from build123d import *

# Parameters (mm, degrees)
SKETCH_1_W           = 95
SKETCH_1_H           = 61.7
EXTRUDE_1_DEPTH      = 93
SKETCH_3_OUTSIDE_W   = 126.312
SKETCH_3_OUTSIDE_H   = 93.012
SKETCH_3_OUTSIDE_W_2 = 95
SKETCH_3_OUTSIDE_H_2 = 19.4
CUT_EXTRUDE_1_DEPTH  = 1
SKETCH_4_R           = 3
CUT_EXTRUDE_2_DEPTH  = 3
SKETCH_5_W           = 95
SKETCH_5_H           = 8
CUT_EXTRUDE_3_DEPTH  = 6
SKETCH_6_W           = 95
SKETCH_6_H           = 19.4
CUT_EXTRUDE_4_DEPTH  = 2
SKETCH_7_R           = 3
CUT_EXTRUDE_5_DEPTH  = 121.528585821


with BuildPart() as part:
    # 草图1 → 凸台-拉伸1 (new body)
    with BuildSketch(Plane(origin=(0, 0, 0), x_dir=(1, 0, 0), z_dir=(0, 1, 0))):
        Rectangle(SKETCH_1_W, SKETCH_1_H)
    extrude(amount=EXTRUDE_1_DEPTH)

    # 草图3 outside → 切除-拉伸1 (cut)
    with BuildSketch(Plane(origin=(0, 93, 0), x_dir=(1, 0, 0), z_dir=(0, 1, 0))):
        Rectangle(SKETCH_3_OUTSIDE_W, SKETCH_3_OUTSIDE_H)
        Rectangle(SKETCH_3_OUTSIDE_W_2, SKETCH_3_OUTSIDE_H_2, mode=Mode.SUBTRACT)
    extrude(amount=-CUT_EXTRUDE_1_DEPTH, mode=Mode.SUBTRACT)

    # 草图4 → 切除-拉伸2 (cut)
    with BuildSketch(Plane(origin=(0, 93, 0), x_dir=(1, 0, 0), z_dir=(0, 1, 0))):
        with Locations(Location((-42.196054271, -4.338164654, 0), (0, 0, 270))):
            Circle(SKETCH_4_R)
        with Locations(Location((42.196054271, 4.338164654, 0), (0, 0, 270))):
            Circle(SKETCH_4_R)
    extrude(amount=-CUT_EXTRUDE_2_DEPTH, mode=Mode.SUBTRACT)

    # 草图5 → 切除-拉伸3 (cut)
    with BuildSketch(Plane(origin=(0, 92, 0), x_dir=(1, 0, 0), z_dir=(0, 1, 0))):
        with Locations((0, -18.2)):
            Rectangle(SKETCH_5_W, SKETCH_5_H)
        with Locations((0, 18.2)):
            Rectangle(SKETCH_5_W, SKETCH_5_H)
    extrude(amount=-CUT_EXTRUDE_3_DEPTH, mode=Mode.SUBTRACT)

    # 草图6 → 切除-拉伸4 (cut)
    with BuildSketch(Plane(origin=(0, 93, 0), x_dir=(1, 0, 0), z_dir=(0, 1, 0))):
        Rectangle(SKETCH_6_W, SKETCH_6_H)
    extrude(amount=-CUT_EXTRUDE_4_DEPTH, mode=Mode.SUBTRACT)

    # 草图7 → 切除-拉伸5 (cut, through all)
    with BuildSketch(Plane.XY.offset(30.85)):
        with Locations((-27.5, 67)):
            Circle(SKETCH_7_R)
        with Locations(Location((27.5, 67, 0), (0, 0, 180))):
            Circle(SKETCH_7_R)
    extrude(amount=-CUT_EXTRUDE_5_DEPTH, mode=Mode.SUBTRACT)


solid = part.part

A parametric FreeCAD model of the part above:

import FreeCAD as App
import Part
import Sketcher

V = App.Vector
Q = App.Units.Quantity

doc = App.newDocument("Part")
body = doc.addObject("PartDesign::Body", "Body")

# Sketch on XZ plane
sketch1 = doc.addObject("Sketcher::SketchObject", "Sketch")
body.addObject(sketch1)
sketch1.AttachmentSupport = (doc.XZ_Plane, [""])
sketch1.MapMode = "FlatFace"
sketch1.addGeometry([
    Part.LineSegment(V(-47.5, -30.85, 0), V(-47.5, 30.85, 0)),
    Part.LineSegment(V(-47.5, 30.85, 0), V(47.5, 30.85, 0)),
    Part.LineSegment(V(47.5, 30.85, 0), V(47.5, -30.85, 0)),
    Part.LineSegment(V(47.5, -30.85, 0), V(-47.5, -30.85, 0)),
], False)
sketch1.addConstraint([
    Sketcher.Constraint("Coincident", 0, 2, 1, 1),
    Sketcher.Constraint("Coincident", 1, 2, 2, 1),
    Sketcher.Constraint("Coincident", 2, 2, 3, 1),
    Sketcher.Constraint("Coincident", 3, 2, 0, 1),
    Sketcher.Constraint("Vertical", 0),
    Sketcher.Constraint("Horizontal", 1),
    Sketcher.Constraint("Vertical", 2),
    Sketcher.Constraint("Horizontal", 3),
    Sketcher.Constraint("Symmetric", 0, 2, 2, 2, -1, 1),
    Sketcher.Constraint("DistanceX", 1, 1, 1, 2, Q("95 mm")),
    Sketcher.Constraint("DistanceY", 0, 1, 0, 2, Q("61.7 mm")),
])
pad1 = doc.addObject("PartDesign::Pad", "Pad")
body.addObject(pad1)
pad1.Profile = sketch1
pad1.Length = 93
pad1.Reversed = True

# Sketch on XZ plane
sketch2 = doc.addObject("Sketcher::SketchObject", "Sketch001")
body.addObject(sketch2)
sketch2.AttachmentSupport = (doc.XZ_Plane, [""])
sketch2.MapMode = "FlatFace"
sketch2.AttachmentOffset = App.Placement(V(0, 0, -93), App.Rotation())
sketch2.addGeometry([
    Part.LineSegment(V(-63.156, -46.506, 0), V(-63.156, 46.506, 0)),  # 0
    Part.LineSegment(V(-63.156, 46.506, 0), V(63.156, 46.506, 0)),  # 1
    Part.LineSegment(V(63.156, 46.506, 0), V(63.156, -46.506, 0)),  # 2
    Part.LineSegment(V(63.156, -46.506, 0), V(-63.156, -46.506, 0)),  # 3
    Part.LineSegment(V(47.5, 9.7, 0), V(-47.5, 9.7, 0)),  # 4
    Part.LineSegment(V(-47.5, 9.7, 0), V(-47.5, -9.7, 0)),  # 5
    Part.LineSegment(V(-47.5, -9.7, 0), V(47.5, -9.7, 0)),  # 6
    Part.LineSegment(V(47.5, -9.7, 0), V(47.5, 9.7, 0)),  # 7
], False)
sketch2.addConstraint([
    Sketcher.Constraint("Coincident", 0, 2, 1, 1),
    Sketcher.Constraint("Coincident", 1, 2, 2, 1),
    Sketcher.Constraint("Coincident", 2, 2, 3, 1),
    Sketcher.Constraint("Coincident", 3, 2, 0, 1),
    Sketcher.Constraint("Coincident", 4, 2, 5, 1),
    Sketcher.Constraint("Coincident", 5, 2, 6, 1),
    Sketcher.Constraint("Coincident", 6, 2, 7, 1),
    Sketcher.Constraint("Coincident", 7, 2, 4, 1),
    Sketcher.Constraint("Vertical", 0),
    Sketcher.Constraint("Horizontal", 1),
    Sketcher.Constraint("Vertical", 2),
    Sketcher.Constraint("Horizontal", 3),
    Sketcher.Constraint("Horizontal", 4),
    Sketcher.Constraint("Vertical", 5),
    Sketcher.Constraint("Horizontal", 6),
    Sketcher.Constraint("Vertical", 7),
    Sketcher.Constraint("Symmetric", 0, 2, 2, 2, -1, 1),
    Sketcher.Constraint("Symmetric", 4, 2, 6, 2, -1, 1),
    Sketcher.Constraint("DistanceX", 4, 2, 4, 1, Q("95 mm")),
    Sketcher.Constraint("DistanceY", 5, 2, 5, 1, Q("19.4 mm")),
    Sketcher.Constraint("DistanceX", 1, 1, 1, 2, Q("126.312 mm")),
    Sketcher.Constraint("DistanceY", 0, 1, 0, 2, Q("93.012 mm")),
])
pocket1 = doc.addObject("PartDesign::Pocket", "Pocket")
body.addObject(pocket1)
pocket1.Profile = sketch2
pocket1.Length = 1
pocket1.Reversed = True

# Sketch on XZ plane
sketch3 = doc.addObject("Sketcher::SketchObject", "Sketch002")
body.addObject(sketch3)
sketch3.AttachmentSupport = (doc.XZ_Plane, [""])
sketch3.MapMode = "FlatFace"
sketch3.AttachmentOffset = App.Placement(V(0, 0, -93), App.Rotation())
sketch3.addGeometry([
    Part.Circle(V(-42.196054, 4.338165, 0), V(0, 0, 1), 3),
    Part.Circle(V(42.196054, -4.338165, 0), V(0, 0, 1), 3),
], False)
sketch3.addConstraint([
    Sketcher.Constraint("Equal", 0, 1),
    Sketcher.Constraint("Symmetric", 0, 3, 1, 3, -1, 1),
    Sketcher.Constraint("Diameter", 0, Q("6 mm")),
    Sketcher.Constraint("DistanceX", 0, 3, 1, 3, Q("84.392109 mm")),
    Sketcher.Constraint("DistanceY", 1, 3, 0, 3, Q("8.676329 mm")),
])
pocket2 = doc.addObject("PartDesign::Pocket", "Pocket001")
body.addObject(pocket2)
pocket2.Profile = sketch3
pocket2.Length = 3
pocket2.Reversed = True

# Sketch on XZ plane
sketch4 = doc.addObject("Sketcher::SketchObject", "Sketch003")
body.addObject(sketch4)
sketch4.AttachmentSupport = (doc.XZ_Plane, [""])
sketch4.MapMode = "FlatFace"
sketch4.AttachmentOffset = App.Placement(V(0, 0, -92), App.Rotation())
sketch4.addGeometry([
    Part.LineSegment(V(-47.5, 14.2, 0), V(-47.5, 22.2, 0)),  # 0
    Part.LineSegment(V(-47.5, 22.2, 0), V(47.5, 22.2, 0)),  # 1
    Part.LineSegment(V(47.5, 22.2, 0), V(47.5, 14.2, 0)),  # 2
    Part.LineSegment(V(47.5, 14.2, 0), V(-47.5, 14.2, 0)),  # 3
    Part.LineSegment(V(-47.5, -22.2, 0), V(-47.5, -14.2, 0)),  # 4
    Part.LineSegment(V(-47.5, -14.2, 0), V(47.5, -14.2, 0)),  # 5
    Part.LineSegment(V(47.5, -14.2, 0), V(47.5, -22.2, 0)),  # 6
    Part.LineSegment(V(47.5, -22.2, 0), V(-47.5, -22.2, 0)),  # 7
], False)
sketch4.addConstraint([
    Sketcher.Constraint("Coincident", 0, 2, 1, 1),
    Sketcher.Constraint("Coincident", 1, 2, 2, 1),
    Sketcher.Constraint("Coincident", 2, 2, 3, 1),
    Sketcher.Constraint("Coincident", 3, 2, 0, 1),
    Sketcher.Constraint("Coincident", 4, 2, 5, 1),
    Sketcher.Constraint("Coincident", 5, 2, 6, 1),
    Sketcher.Constraint("Coincident", 6, 2, 7, 1),
    Sketcher.Constraint("Coincident", 7, 2, 4, 1),
    Sketcher.Constraint("Vertical", 0),
    Sketcher.Constraint("Horizontal", 1),
    Sketcher.Constraint("Vertical", 2),
    Sketcher.Constraint("Horizontal", 3),
    Sketcher.Constraint("Vertical", 4),
    Sketcher.Constraint("Horizontal", 5),
    Sketcher.Constraint("Vertical", 6),
    Sketcher.Constraint("Horizontal", 7),
    Sketcher.Constraint("Symmetric", 2, 2, 4, 2, -1, 1),
    Sketcher.Constraint("Symmetric", 0, 2, 6, 2, -1, 1),
    Sketcher.Constraint("Vertical", 3, 2, 4, 2),
    Sketcher.Constraint("DistanceX", 1, 1, 1, 2, Q("95 mm")),
    Sketcher.Constraint("DistanceY", 0, 1, 0, 2, Q("8 mm")),
    Sketcher.Constraint("DistanceY", -1, 1, 0, 2, Q("22.2 mm")),
])
pocket3 = doc.addObject("PartDesign::Pocket", "Pocket002")
body.addObject(pocket3)
pocket3.Profile = sketch4
pocket3.Length = 6
pocket3.Reversed = True

# Sketch on XZ plane
sketch5 = doc.addObject("Sketcher::SketchObject", "Sketch004")
body.addObject(sketch5)
sketch5.AttachmentSupport = (doc.XZ_Plane, [""])
sketch5.MapMode = "FlatFace"
sketch5.AttachmentOffset = App.Placement(V(0, 0, -93), App.Rotation())
sketch5.addGeometry([
    Part.LineSegment(V(-47.5, -9.7, 0), V(-47.5, 9.7, 0)),
    Part.LineSegment(V(-47.5, 9.7, 0), V(47.5, 9.7, 0)),
    Part.LineSegment(V(47.5, 9.7, 0), V(47.5, -9.7, 0)),
    Part.LineSegment(V(47.5, -9.7, 0), V(-47.5, -9.7, 0)),
], False)
sketch5.addConstraint([
    Sketcher.Constraint("Coincident", 0, 2, 1, 1),
    Sketcher.Constraint("Coincident", 1, 2, 2, 1),
    Sketcher.Constraint("Coincident", 2, 2, 3, 1),
    Sketcher.Constraint("Coincident", 3, 2, 0, 1),
    Sketcher.Constraint("Vertical", 0),
    Sketcher.Constraint("Horizontal", 1),
    Sketcher.Constraint("Vertical", 2),
    Sketcher.Constraint("Horizontal", 3),
    Sketcher.Constraint("Symmetric", 0, 2, 2, 2, -1, 1),
    Sketcher.Constraint("DistanceX", 1, 1, 1, 2, Q("95 mm")),
    Sketcher.Constraint("DistanceY", 0, 1, 0, 2, Q("19.4 mm")),
])
pocket4 = doc.addObject("PartDesign::Pocket", "Pocket003")
body.addObject(pocket4)
pocket4.Profile = sketch5
pocket4.Length = 2
pocket4.Reversed = True

# Sketch on XY plane
sketch6 = doc.addObject("Sketcher::SketchObject", "Sketch005")
body.addObject(sketch6)
sketch6.AttachmentSupport = (doc.XY_Plane, [""])
sketch6.MapMode = "FlatFace"
sketch6.AttachmentOffset = App.Placement(V(0, 0, 30.85), App.Rotation())
sketch6.addGeometry([
    Part.Circle(V(-27.5, 67, 0), V(0, 0, 1), 3),
    Part.Circle(V(27.5, 67, 0), V(0, 0, 1), 3),
], False)
sketch6.addConstraint([
    Sketcher.Constraint("Equal", 0, 1),
    Sketcher.Constraint("Symmetric", 0, 3, 1, 3, -2),
    Sketcher.Constraint("Diameter", 0, Q("6 mm")),
    Sketcher.Constraint("DistanceY", -1, 1, 0, 3, Q("67 mm")),
    Sketcher.Constraint("DistanceX", 0, 3, 1, 3, Q("55 mm")),
])
pocket5 = doc.addObject("PartDesign::Pocket", "Pocket004")
body.addObject(pocket5)
pocket5.Profile = sketch6
pocket5.Type = "ThroughAll"

doc.recompute()
